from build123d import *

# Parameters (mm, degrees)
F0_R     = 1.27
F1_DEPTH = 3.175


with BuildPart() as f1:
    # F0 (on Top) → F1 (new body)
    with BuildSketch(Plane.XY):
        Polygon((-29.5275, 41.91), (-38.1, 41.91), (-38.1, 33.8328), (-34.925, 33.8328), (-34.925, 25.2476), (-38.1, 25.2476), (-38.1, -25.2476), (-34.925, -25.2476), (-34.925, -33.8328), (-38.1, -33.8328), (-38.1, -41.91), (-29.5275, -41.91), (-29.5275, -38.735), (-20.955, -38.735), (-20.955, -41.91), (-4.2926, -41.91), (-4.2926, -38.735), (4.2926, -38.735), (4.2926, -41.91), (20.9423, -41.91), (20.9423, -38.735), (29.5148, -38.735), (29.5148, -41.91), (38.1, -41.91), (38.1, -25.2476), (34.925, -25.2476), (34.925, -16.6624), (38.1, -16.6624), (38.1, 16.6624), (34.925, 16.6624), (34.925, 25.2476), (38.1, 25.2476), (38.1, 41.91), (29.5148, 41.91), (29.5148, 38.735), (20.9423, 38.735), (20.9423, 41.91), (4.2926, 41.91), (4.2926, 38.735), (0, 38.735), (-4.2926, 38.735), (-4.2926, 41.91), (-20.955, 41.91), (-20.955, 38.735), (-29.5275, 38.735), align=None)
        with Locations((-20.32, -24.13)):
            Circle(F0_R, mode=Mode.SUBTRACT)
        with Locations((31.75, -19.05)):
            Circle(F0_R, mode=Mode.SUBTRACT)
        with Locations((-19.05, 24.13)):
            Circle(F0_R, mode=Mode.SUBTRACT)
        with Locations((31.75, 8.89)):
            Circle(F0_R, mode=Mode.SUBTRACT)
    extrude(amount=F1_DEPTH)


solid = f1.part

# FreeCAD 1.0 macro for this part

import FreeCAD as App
import Part
import Sketcher
Q = App.Units.Quantity

doc = App.newDocument("Part")
params = doc.addObject("Spreadsheet::Sheet", "Params")
for row, (alias, value) in enumerate([
    ("sketch1_diameter", "0.1 in"),
    ("sketch1_width", "0.125 in"),
    ("sketch1_width2", "0.656 in"),
    ("sketch1_width3", "0.338 in"),
    ("pad1_length", "0.125 in"),
], start=1):
    params.set(f"A{row}", alias)
    params.set(f"B{row}", "=" + value)
    params.setAlias(f"B{row}", alias)

body = doc.addObject("PartDesign::Body", "Body")

sketch1 = body.newObject("Sketcher::SketchObject", "Sketch")
sketch1.AttachmentSupport = (doc.getObject("XY_Plane"), [""])
sketch1.MapMode = "FlatFace"
sketch1.addGeometry(Part.LineSegment(App.Vector(-29.5, 41.9, 0), App.Vector(-38.1, 41.9, 0)), False)
sketch1.addGeometry(Part.LineSegment(App.Vector(-38.1, 41.9, 0), App.Vector(-38.1, 33.8, 0)), False)
sketch1.addGeometry(Part.LineSegment(App.Vector(-38.1, 33.8, 0), App.Vector(-34.9, 33.8, 0)), False)
sketch1.addGeometry(Part.LineSegment(App.Vector(-34.9, 33.8, 0), App.Vector(-34.9, 25.2, 0)), False)
sketch1.addGeometry(Part.LineSegment(App.Vector(-34.9, 25.2, 0), App.Vector(-38.1, 25.2, 0)), False)
sketch1.addGeometry(Part.LineSegment(App.Vector(-38.1, 25.2, 0), App.Vector(-38.1, -25.2, 0)), False)
sketch1.addGeometry(Part.LineSegment(App.Vector(-38.1, -25.2, 0), App.Vector(-34.9, -25.2, 0)), False)
sketch1.addGeometry(Part.LineSegment(App.Vector(-34.9, -25.2, 0), App.Vector(-34.9, -33.8, 0)), False)
sketch1.addGeometry(Part.LineSegment(App.Vector(-34.9, -33.8, 0), App.Vector(-38.1, -33.8, 0)), False)
sketch1.addGeometry(Part.LineSegment(App.Vector(-38.1, -33.8, 0), App.Vector(-38.1, -41.9, 0)), False)
sketch1.addGeometry(Part.LineSegment(App.Vector(-38.1, -41.9, 0), App.Vector(-29.5, -41.9, 0)), False)
sketch1.addGeometry(Part.LineSegment(App.Vector(-29.5, -41.9, 0), App.Vector(-29.5, -38.7, 0)), False)
sketch1.addGeometry(Part.LineSegment(App.Vector(-29.5, -38.7, 0), App.Vector(-21, -38.7, 0)), False)
sketch1.addGeometry(Part.LineSegment(App.Vector(-21, -38.7, 0), App.Vector(-21, -41.9, 0)), False)
sketch1.addGeometry(Part.LineSegment(App.Vector(-21, -41.9, 0), App.Vector(-4.3, -41.9, 0)), False)
sketch1.addGeometry(Part.LineSegment(App.Vector(-4.3, -41.9, 0), App.Vector(-4.3, -38.7, 0)), False)
sketch1.addGeometry(Part.LineSegment(App.Vector(-4.3, -38.7, 0), App.Vector(4.3, -38.7, 0)), False)
sketch1.addGeometry(Part.LineSegment(App.Vector(4.3, -38.7, 0), App.Vector(4.3, -41.9, 0)), False)
sketch1.addGeometry(Part.LineSegment(App.Vector(4.3, -41.9, 0), App.Vector(20.9, -41.9, 0)), False)
sketch1.addGeometry(Part.LineSegment(App.Vector(20.9, -41.9, 0), App.Vector(20.9, -38.7, 0)), False)
sketch1.addGeometry(Part.LineSegment(App.Vector(20.9, -38.7, 0), App.Vector(29.5, -38.7, 0)), False)
sketch1.addGeometry(Part.LineSegment(App.Vector(29.5, -38.7, 0), App.Vector(29.5, -41.9, 0)), False)
sketch1.addGeometry(Part.LineSegment(App.Vector(29.5, -41.9, 0), App.Vector(38.1, -41.9, 0)), False)
sketch1.addGeometry(Part.LineSegment(App.Vector(38.1, -41.9, 0), App.Vector(38.1, -25.2, 0)), False)
sketch1.addGeometry(Part.LineSegment(App.Vector(38.1, -25.2, 0), App.Vector(34.9, -25.2, 0)), False)
sketch1.addGeometry(Part.LineSegment(App.Vector(34.9, -25.2, 0), App.Vector(34.9, -16.7, 0)), False)
sketch1.addGeometry(Part.LineSegment(App.Vector(34.9, -16.7, 0), App.Vector(38.1, -16.7, 0)), False)
sketch1.addGeometry(Part.LineSegment(App.Vector(38.1, -16.7, 0), App.Vector(38.1, 16.7, 0)), False)
sketch1.addGeometry(Part.LineSegment(App.Vector(38.1, 16.7, 0), App.Vector(34.9, 16.7, 0)), False)
sketch1.addGeometry(Part.LineSegment(App.Vector(34.9, 16.7, 0), App.Vector(34.9, 25.2, 0)), False)
sketch1.addGeometry(Part.LineSegment(App.Vector(34.9, 25.2, 0), App.Vector(38.1, 25.2, 0)), False)
sketch1.addGeometry(Part.LineSegment(App.Vector(38.1, 25.2, 0), App.Vector(38.1, 41.9, 0)), False)
sketch1.addGeometry(Part.LineSegment(App.Vector(38.1, 41.9, 0), App.Vector(29.5, 41.9, 0)), False)
sketch1.addGeometry(Part.LineSegment(App.Vector(29.5, 41.9, 0), App.Vector(29.5, 38.7, 0)), False)
sketch1.addGeometry(Part.LineSegment(App.Vector(29.5, 38.7, 0), App.Vector(20.9, 38.7, 0)), False)
sketch1.addGeometry(Part.LineSegment(App.Vector(20.9, 38.7, 0), App.Vector(20.9, 41.9, 0)), False)
sketch1.addGeometry(Part.LineSegment(App.Vector(20.9, 41.9, 0), App.Vector(4.3, 41.9, 0)), False)
sketch1.addGeometry(Part.LineSegment(App.Vector(4.3, 41.9, 0), App.Vector(4.3, 38.7, 0)), False)
sketch1.addGeometry(Part.LineSegment(App.Vector(4.3, 38.7, 0), App.Vector(-4.3, 38.7, 0)), False)
sketch1.addGeometry(Part.LineSegment(App.Vector(-4.3, 38.7, 0), App.Vector(-4.3, 41.9, 0)), False)
sketch1.addGeometry(Part.LineSegment(App.Vector(-4.3, 41.9, 0), App.Vector(-21, 41.9, 0)), False)
sketch1.addGeometry(Part.LineSegment(App.Vector(-21, 41.9, 0), App.Vector(-21, 38.7, 0)), False)
sketch1.addGeometry(Part.LineSegment(App.Vector(-21, 38.7, 0), App.Vector(-29.5, 38.7, 0)), False)
sketch1.addGeometry(Part.LineSegment(App.Vector(-29.5, 38.7, 0), App.Vector(-29.5, 41.9, 0)), False)
sketch1.addGeometry(Part.Circle(App.Vector(-20.3, -24.1, 0), App.Vector(0, 0, 1), 1.3), False)
sketch1.addGeometry(Part.Circle(App.Vector(31.8, -19.1, 0), App.Vector(0, 0, 1), 1.3), False)
sketch1.addGeometry(Part.Circle(App.Vector(-19.1, 24.1, 0), App.Vector(0, 0, 1), 1.3), False)
sketch1.addGeometry(Part.Circle(App.Vector(31.8, 8.9, 0), App.Vector(0, 0, 1), 1.3), False)
sketch1.addConstraint(Sketcher.Constraint("Coincident", 0, 2, 1, 1))
sketch1.addConstraint(Sketcher.Constraint("Coincident", 1, 2, 2, 1))
sketch1.addConstraint(Sketcher.Constraint("Coincident", 2, 2, 3, 1))
sketch1.addConstraint(Sketcher.Constraint("Coincident", 3, 2, 4, 1))
sketch1.addConstraint(Sketcher.Constraint("Coincident", 4, 2, 5, 1))
sketch1.addConstraint(Sketcher.Constraint("Coincident", 5, 2, 6, 1))
sketch1.addConstraint(Sketcher.Constraint("Coincident", 6, 2, 7, 1))
sketch1.addConstraint(Sketcher.Constraint("Coincident", 7, 2, 8, 1))
sketch1.addConstraint(Sketcher.Constraint("Coincident", 8, 2, 9, 1))
sketch1.addConstraint(Sketcher.Constraint("Coincident", 9, 2, 10, 1))
sketch1.addConstraint(Sketcher.Constraint("Coincident", 10, 2, 11, 1))
sketch1.addConstraint(Sketcher.Constraint("Coincident", 11, 2, 12, 1))
sketch1.addConstraint(Sketcher.Constraint("Coincident", 12, 2, 13, 1))
sketch1.addConstraint(Sketcher.Constraint("Coincident", 13, 2, 14, 1))
sketch1.addConstraint(Sketcher.Constraint("Coincident", 14, 2, 15, 1))
sketch1.addConstraint(Sketcher.Constraint("Coincident", 15, 2, 16, 1))
sketch1.addConstraint(Sketcher.Constraint("Coincident", 16, 2, 17, 1))
sketch1.addConstraint(Sketcher.Constraint("Coincident", 17, 2, 18, 1))
sketch1.addConstraint(Sketcher.Constraint("Coincident", 18, 2, 19, 1))
sketch1.addConstraint(Sketcher.Constraint("Coincident", 19, 2, 20, 1))
sketch1.addConstraint(Sketcher.Constraint("Coincident", 20, 2, 21, 1))
sketch1.addConstraint(Sketcher.Constraint("Coincident", 21, 2, 22, 1))
sketch1.addConstraint(Sketcher.Constraint("Coincident", 22, 2, 23, 1))
sketch1.addConstraint(Sketcher.Constraint("Coincident", 23, 2, 24, 1))
sketch1.addConstraint(Sketcher.Constraint("Coincident", 24, 2, 25, 1))
sketch1.addConstraint(Sketcher.Constraint("Coincident", 25, 2, 26, 1))
sketch1.addConstraint(Sketcher.Constraint("Coincident", 26, 2, 27, 1))
sketch1.addConstraint(Sketcher.Constraint("Coincident", 27, 2, 28, 1))
sketch1.addConstraint(Sketcher.Constraint("Coincident", 28, 2, 29, 1))
sketch1.addConstraint(Sketcher.Constraint("Coincident", 29, 2, 30, 1))
sketch1.addConstraint(Sketcher.Constraint("Coincident", 30, 2, 31, 1))
sketch1.addConstraint(Sketcher.Constraint("Coincident", 31, 2, 32, 1))
sketch1.addConstraint(Sketcher.Constraint("Coincident", 32, 2, 33, 1))
sketch1.addConstraint(Sketcher.Constraint("Coincident", 33, 2, 34, 1))
sketch1.addConstraint(Sketcher.Constraint("Coincident", 34, 2, 35, 1))
sketch1.addConstraint(Sketcher.Constraint("Coincident", 35, 2, 36, 1))
sketch1.addConstraint(Sketcher.Constraint("Coincident", 36, 2, 37, 1))
sketch1.addConstraint(Sketcher.Constraint("Coincident", 37, 2, 38, 1))
sketch1.addConstraint(Sketcher.Constraint("Coincident", 38, 2, 39, 1))
sketch1.addConstraint(Sketcher.Constraint("Coincident", 39, 2, 40, 1))
sketch1.addConstraint(Sketcher.Constraint("Coincident", 40, 2, 41, 1))
sketch1.addConstraint(Sketcher.Constraint("Coincident", 41, 2, 42, 1))
sketch1.addConstraint(Sketcher.Constraint("Coincident", 42, 2, 43, 1))
sketch1.addConstraint(Sketcher.Constraint("Coincident", 43, 2, 0, 1))
sketch1.addConstraint(Sketcher.Constraint("Horizontal", 0))
sketch1.addConstraint(Sketcher.Constraint("Vertical", 1))
sketch1.addConstraint(Sketcher.Constraint("Horizontal", 2))
sketch1.addConstraint(Sketcher.Constraint("Vertical", 3))
sketch1.addConstraint(Sketcher.Constraint("Horizontal", 4))
sketch1.addConstraint(Sketcher.Constraint("Vertical", 5))
sketch1.addConstraint(Sketcher.Constraint("Horizontal", 6))
sketch1.addConstraint(Sketcher.Constraint("Vertical", 7))
sketch1.addConstraint(Sketcher.Constraint("Horizontal", 8))
sketch1.addConstraint(Sketcher.Constraint("Vertical", 9))
sketch1.addConstraint(Sketcher.Constraint("Horizontal", 10))
sketch1.addConstraint(Sketcher.Constraint("Vertical", 11))
sketch1.addConstraint(Sketcher.Constraint("Horizontal", 12))
sketch1.addConstraint(Sketcher.Constraint("Vertical", 13))
sketch1.addConstraint(Sketcher.Constraint("Horizontal", 14))
sketch1.addConstraint(Sketcher.Constraint("Vertical", 15))
sketch1.addConstraint(Sketcher.Constraint("Horizontal", 16))
sketch1.addConstraint(Sketcher.Constraint("Vertical", 17))
sketch1.addConstraint(Sketcher.Constraint("Horizontal", 18))
sketch1.addConstraint(Sketcher.Constraint("Vertical", 19))
sketch1.addConstraint(Sketcher.Constraint("Horizontal", 20))
sketch1.addConstraint(Sketcher.Constraint("Vertical", 21))
sketch1.addConstraint(Sketcher.Constraint("Horizontal", 22))
sketch1.addConstraint(Sketcher.Constraint("Vertical", 23))
sketch1.addConstraint(Sketcher.Constraint("Horizontal", 24))
sketch1.addConstraint(Sketcher.Constraint("Vertical", 25))
sketch1.addConstraint(Sketcher.Constraint("Horizontal", 26))
sketch1.addConstraint(Sketcher.Constraint("Vertical", 27))
sketch1.addConstraint(Sketcher.Constraint("Horizontal", 28))
sketch1.addConstraint(Sketcher.Constraint("Vertical", 29))
sketch1.addConstraint(Sketcher.Constraint("Horizontal", 30))
sketch1.addConstraint(Sketcher.Constraint("Vertical", 31))
sketch1.addConstraint(Sketcher.Constraint("Horizontal", 32))
sketch1.addConstraint(Sketcher.Constraint("Vertical", 33))
sketch1.addConstraint(Sketcher.Constraint("Horizontal", 34))
sketch1.addConstraint(Sketcher.Constraint("Vertical", 35))
sketch1.addConstraint(Sketcher.Constraint("Horizontal", 36))
sketch1.addConstraint(Sketcher.Constraint("Vertical", 37))
sketch1.addConstraint(Sketcher.Constraint("Horizontal", 38))
sketch1.addConstraint(Sketcher.Constraint("Vertical", 39))
sketch1.addConstraint(Sketcher.Constraint("Horizontal", 40))
sketch1.addConstraint(Sketcher.Constraint("Vertical", 41))
sketch1.addConstraint(Sketcher.Constraint("Horizontal", 42))
sketch1.addConstraint(Sketcher.Constraint("Vertical", 43))
sketch1.addConstraint(Sketcher.Constraint("Equal", 44, 45))
sketch1.addConstraint(Sketcher.Constraint("Equal", 45, 46))
sketch1.addConstraint(Sketcher.Constraint("Equal", 46, 47))
sketch1.addConstraint(Sketcher.Constraint("Symmetric", 0, 2, 22, 2, -1, 1))
sketch1.addConstraint(Sketcher.Constraint("Symmetric", 4, 2, 23, 2, -1, 1))
sketch1.addConstraint(Sketcher.Constraint("Symmetric", 6, 2, 29, 2, -1, 1))
sketch1.addConstraint(Sketcher.Constraint("Symmetric", 9, 2, 31, 2, -1, 1))
sketch1.addConstraint(Sketcher.Constraint("Symmetric", 14, 2, 36, 2, -1, 1))
sketch1.addConstraint(Sketcher.Constraint("Symmetric", 16, 2, 38, 2, -1, 1))
sketch1.addConstraint(Sketcher.Constraint("Symmetric", 14, 2, 17, 2, -2))
sketch1.addConstraint(Sketcher.Constraint("Symmetric", 9, 2, 22, 2, -2))
sketch1.addConstraint(Sketcher.Constraint("Symmetric", 6, 2, 24, 2, -2))
sketch1.addConstraint(Sketcher.Constraint("Symmetric", 2, 2, 7, 2, -1))
sketch1.addConstraint(Sketcher.Constraint("Symmetric", 20, 2, 33, 2, -1))
sketch1.addConstraint(Sketcher.Constraint("Symmetric", 13, 2, 40, 2, -1))
sketch1.addConstraint(Sketcher.Constraint("Symmetric", 11, 2, 42, 2, -1))
sketch1.addConstraint(Sketcher.Constraint("Horizontal", 10, 2, 13, 2))
sketch1.addConstraint(Sketcher.Constraint("Horizontal", 12, 2, 15, 2))
sketch1.addConstraint(Sketcher.Constraint("Horizontal", 16, 2, 19, 2))
sketch1.addConstraint(Sketcher.Constraint("Vertical", 45, 3, 47, 3))
sketch1.addConstraint(Sketcher.Constraint("Vertical", 23, 2, 26, 2))
sketch1.addConstraint(Sketcher.Constraint("Vertical", 19, 2, 34, 2))
sketch1.addConstraint(Sketcher.Constraint("Equal", 10, 12))
sketch1.addConstraint(Sketcher.Constraint("Equal", 12, 20))
sketch1.addConstraint(Sketcher.Constraint("Equal", 16, 22))
sketch1.addConstraint(Sketcher.Constraint("Equal", 38, 3))
sketch1.addConstraint(Sketcher.Constraint("Equal", 30, 11))
sketch1.addConstraint(Sketcher.Constraint("Equal", 40, 23))
sketch1.addConstraint(Sketcher.Constraint("Equal", 7, 25))
sketch1.addConstraint(Sketcher.Constraint("Equal", 25, 29))
sketch1.addConstraint(Sketcher.Constraint("Diameter", 44, Q("0.1 in")))
sketch1.addConstraint(Sketcher.Constraint("DistanceX", 46, 3, 45, 3, Q("2 in")))
sketch1.addConstraint(Sketcher.Constraint("DistanceX", 44, 3, -1, 1, Q("0.8 in")))
sketch1.addConstraint(Sketcher.Constraint("DistanceX", 0, 2, -1, 1, Q("1.5 in")))
sketch1.addConstraint(Sketcher.Constraint("DistanceY", 44, 3, 45, 3, Q("0.2 in")))
sketch1.addConstraint(Sketcher.Constraint("DistanceY", 44, 3, 46, 3, Q("1.9 in")))
sketch1.addConstraint(Sketcher.Constraint("DistanceY", 45, 3, 47, 3, Q("1.1 in")))
sketch1.addConstraint(Sketcher.Constraint("DistanceY", 46, 3, 0, 2, Q("0.7 in")))
sketch1.addConstraint(Sketcher.Constraint("DistanceY", 9, 2, 44, 3, Q("0.7 in")))
sketch1.addConstraint(Sketcher.Constraint("DistanceX", 2, 1, 2, 2, Q("0.125 in")))
sketch1.addConstraint(Sketcher.Constraint("DistanceX", 14, 1, 14, 2, Q("0.656 in")))
sketch1.addConstraint(Sketcher.Constraint("DistanceX", 16, 1, 16, 2, Q("0.338 in")))
sketch1.addConstraint(Sketcher.Constraint("DistanceX", -1, 1, 45, 3, Q("1.25 in")))
sketch1.setExpression("Constraints[118]", "Params.sketch1_diameter")
sketch1.setExpression("Constraints[127]", "Params.sketch1_width")
sketch1.setExpression("Constraints[128]", "Params.sketch1_width2")
sketch1.setExpression("Constraints[129]", "Params.sketch1_width3")
pad1 = body.newObject("PartDesign::Pad", "Pad")
pad1.Profile = sketch1
pad1.setExpression("Length", "Params.pad1_length")

doc.recompute()
